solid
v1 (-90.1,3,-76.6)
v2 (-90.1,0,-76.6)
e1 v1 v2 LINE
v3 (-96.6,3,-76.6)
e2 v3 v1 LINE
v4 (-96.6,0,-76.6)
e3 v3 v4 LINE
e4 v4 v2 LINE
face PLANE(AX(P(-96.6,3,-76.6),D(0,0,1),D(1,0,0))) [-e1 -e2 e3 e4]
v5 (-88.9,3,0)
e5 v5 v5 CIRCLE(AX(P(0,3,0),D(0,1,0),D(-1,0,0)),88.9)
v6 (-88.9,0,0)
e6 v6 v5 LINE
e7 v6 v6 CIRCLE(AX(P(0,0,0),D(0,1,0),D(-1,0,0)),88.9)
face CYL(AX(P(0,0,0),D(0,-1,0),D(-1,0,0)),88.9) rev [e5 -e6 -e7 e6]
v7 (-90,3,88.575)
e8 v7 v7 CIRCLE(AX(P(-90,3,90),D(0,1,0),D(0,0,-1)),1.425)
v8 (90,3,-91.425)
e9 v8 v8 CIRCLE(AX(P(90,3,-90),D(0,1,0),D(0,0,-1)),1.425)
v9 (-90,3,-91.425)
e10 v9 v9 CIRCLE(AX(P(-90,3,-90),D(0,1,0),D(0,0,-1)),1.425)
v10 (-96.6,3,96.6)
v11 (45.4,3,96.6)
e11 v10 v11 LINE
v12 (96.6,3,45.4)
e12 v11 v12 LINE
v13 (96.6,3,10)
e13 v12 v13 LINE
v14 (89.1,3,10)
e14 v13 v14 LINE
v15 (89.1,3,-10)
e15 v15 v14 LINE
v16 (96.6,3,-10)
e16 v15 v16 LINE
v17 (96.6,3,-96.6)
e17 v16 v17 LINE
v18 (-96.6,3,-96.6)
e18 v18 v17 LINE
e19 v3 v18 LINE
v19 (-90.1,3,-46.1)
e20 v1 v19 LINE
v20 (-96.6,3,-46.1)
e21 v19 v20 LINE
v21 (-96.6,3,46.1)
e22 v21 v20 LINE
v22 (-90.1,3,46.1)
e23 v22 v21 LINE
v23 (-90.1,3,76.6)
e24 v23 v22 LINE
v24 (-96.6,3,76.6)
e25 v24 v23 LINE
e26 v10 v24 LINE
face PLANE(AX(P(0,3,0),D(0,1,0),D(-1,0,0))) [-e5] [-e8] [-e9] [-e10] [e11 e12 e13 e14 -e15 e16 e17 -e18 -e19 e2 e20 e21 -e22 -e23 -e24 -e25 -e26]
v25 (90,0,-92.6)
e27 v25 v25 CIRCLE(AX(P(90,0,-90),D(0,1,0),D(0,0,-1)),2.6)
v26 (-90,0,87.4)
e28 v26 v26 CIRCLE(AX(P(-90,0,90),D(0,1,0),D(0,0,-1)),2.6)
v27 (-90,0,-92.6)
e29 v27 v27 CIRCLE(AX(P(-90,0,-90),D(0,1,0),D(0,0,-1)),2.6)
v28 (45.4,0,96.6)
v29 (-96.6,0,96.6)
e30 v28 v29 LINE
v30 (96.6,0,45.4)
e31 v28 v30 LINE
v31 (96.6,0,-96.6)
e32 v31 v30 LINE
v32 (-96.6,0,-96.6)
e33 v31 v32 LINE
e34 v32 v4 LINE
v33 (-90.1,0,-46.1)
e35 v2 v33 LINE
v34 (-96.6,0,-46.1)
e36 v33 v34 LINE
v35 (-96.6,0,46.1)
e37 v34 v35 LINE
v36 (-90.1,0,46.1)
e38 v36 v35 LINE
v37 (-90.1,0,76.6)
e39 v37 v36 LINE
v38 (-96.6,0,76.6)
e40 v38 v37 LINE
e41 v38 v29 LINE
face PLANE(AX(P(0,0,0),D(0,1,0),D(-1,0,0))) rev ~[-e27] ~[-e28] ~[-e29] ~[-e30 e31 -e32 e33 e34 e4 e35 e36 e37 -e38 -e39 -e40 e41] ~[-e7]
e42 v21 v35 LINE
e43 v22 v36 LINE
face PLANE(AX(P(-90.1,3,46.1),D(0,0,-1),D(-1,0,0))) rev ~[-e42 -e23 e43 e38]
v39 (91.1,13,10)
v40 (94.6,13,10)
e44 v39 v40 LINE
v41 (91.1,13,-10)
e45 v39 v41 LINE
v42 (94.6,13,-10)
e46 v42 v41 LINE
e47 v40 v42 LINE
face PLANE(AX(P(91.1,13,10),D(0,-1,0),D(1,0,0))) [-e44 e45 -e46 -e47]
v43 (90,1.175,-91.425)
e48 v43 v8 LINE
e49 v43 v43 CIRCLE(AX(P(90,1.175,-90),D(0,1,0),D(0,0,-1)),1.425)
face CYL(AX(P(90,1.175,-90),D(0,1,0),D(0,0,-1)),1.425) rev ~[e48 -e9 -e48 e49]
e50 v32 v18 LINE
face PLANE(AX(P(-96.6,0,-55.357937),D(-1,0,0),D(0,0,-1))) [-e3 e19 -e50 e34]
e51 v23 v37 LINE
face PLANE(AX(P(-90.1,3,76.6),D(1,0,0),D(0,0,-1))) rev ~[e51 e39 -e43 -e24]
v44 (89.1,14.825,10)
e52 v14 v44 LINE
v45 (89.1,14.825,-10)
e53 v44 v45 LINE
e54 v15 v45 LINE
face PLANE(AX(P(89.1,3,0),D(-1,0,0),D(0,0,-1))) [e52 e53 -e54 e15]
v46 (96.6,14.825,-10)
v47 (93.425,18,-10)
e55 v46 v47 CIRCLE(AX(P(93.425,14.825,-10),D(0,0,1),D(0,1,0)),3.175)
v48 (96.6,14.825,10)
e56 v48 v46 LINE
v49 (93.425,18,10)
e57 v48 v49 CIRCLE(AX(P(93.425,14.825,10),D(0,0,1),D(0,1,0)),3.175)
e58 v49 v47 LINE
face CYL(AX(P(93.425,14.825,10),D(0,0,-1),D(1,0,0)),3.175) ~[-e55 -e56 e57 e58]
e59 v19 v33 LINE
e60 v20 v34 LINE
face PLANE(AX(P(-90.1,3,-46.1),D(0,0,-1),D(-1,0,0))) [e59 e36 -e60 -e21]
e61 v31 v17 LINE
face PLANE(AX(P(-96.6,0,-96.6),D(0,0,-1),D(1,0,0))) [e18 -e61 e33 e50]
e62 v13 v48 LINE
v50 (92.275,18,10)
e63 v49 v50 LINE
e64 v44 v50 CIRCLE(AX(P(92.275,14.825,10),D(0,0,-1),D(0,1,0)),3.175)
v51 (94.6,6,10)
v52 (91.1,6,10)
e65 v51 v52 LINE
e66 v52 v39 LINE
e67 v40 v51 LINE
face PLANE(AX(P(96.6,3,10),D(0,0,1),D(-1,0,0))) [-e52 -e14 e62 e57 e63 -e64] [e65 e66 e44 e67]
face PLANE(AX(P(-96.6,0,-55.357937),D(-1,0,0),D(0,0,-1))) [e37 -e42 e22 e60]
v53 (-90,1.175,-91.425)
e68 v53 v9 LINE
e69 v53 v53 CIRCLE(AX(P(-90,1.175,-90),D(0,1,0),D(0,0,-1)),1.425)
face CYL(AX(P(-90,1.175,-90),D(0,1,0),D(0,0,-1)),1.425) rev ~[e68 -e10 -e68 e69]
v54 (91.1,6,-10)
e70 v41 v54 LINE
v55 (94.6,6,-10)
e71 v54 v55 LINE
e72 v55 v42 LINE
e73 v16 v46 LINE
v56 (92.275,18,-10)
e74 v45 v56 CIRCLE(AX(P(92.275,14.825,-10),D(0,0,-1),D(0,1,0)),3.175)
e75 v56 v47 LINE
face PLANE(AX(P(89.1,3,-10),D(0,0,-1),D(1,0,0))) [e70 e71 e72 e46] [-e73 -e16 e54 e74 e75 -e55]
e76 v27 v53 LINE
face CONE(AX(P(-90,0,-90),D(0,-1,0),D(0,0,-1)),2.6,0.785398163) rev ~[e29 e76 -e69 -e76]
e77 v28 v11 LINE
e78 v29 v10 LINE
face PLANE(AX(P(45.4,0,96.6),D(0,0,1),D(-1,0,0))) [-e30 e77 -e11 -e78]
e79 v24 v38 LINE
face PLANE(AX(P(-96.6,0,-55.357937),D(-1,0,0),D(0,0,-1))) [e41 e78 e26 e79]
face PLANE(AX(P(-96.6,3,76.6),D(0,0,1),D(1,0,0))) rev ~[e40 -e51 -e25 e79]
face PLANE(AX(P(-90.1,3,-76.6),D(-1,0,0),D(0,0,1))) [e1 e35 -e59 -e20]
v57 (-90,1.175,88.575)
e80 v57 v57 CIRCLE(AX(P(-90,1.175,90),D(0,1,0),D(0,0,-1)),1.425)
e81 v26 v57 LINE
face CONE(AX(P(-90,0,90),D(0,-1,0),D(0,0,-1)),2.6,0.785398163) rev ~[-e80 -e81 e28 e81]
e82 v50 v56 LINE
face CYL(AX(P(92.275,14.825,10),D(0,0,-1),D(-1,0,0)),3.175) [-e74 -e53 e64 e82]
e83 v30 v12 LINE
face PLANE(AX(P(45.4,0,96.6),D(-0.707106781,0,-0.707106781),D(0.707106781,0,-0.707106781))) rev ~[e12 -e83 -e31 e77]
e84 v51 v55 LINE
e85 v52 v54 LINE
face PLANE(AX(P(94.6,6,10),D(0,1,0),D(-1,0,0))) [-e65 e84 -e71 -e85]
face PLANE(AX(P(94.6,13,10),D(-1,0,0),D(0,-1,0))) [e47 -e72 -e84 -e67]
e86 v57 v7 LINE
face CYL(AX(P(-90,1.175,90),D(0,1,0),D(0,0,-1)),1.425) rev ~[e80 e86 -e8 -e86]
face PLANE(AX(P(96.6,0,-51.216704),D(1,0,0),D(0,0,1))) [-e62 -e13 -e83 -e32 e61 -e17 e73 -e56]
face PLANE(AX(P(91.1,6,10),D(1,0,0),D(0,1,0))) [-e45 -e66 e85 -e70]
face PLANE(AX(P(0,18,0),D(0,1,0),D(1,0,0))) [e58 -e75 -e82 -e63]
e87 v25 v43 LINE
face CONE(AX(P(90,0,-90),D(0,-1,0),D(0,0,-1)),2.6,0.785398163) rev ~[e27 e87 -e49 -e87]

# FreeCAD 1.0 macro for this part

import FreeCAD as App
import Part
import Sketcher


def edges_at(feature, points):
    """Names of the edges that pass closest to the given points."""
    edges = feature.Shape.Edges
    near = lambda p: min(range(len(edges)), key=lambda i: edges[i].distToShape(Part.Vertex(*p))[0])
    return sorted({f"Edge{near(p) + 1}" for p in points})


def add_polygon(sketch, points):
    """Adds a closed chain of lines whose ends are joined by coincident constraints."""
    first, n = sketch.GeometryCount, len(points)
    for a, b in zip(points, points[1:] + points[:1]):
        sketch.addGeometry(Part.LineSegment(App.Vector(*a, 0), App.Vector(*b, 0)), False)
    for i in range(n):
        sketch.addConstraint(Sketcher.Constraint("Coincident", first + i, 2, first + (i + 1) % n, 1))

doc = App.newDocument("Part")
params = doc.addObject("Spreadsheet::Sheet", "Params")
for row, (alias, value) in enumerate([
    ("sketch1_diameter", "177.8 mm"),
    ("sketch1_width", "142 mm"),
    ("sketch1_width2", "193.2 mm"),
    ("pad1_length", "3 mm"),
    ("sketch2_width", "7.5 mm"),
    ("pad2_length", "15 mm"),
    ("sketch3_height", "7 mm"),
    ("sketch3_width", "3.5 mm"),
    ("fillet_radius", "3.175 mm"),
    ("sketch4_width", "6.5 mm"),
    ("sketch4_height", "30.5 mm"),
    ("sketch5_diameter", "2.85 mm"),
    ("hole_diameter", "2.85 mm"),
    ("hole_depth", "4 mm"),
    ("hole_csink_diameter", "5.2 mm"),
], start=1):
    params.set(f"A{row}", alias)
    params.set(f"B{row}", "=" + value)
    params.setAlias(f"B{row}", alias)

body = doc.addObject("PartDesign::Body", "Body")

# Sketch on XZ plane
sketch1 = body.newObject("Sketcher::SketchObject", "Sketch")
sketch1.AttachmentSupport = (doc.getObject("XZ_Plane"), [""])
sketch1.MapMode = "FlatFace"
add_polygon(sketch1, [(-96.6, -96.6), (-96.6, 96.6), (45.4, 96.6), (96.6, 45.4), (96.6, -96.6)])  # lines 0-4
sketch1.addGeometry(Part.Circle(App.Vector(0, 0, 0), App.Vector(0, 0, 1), 88.9), False)  # 5
sketch1.addConstraint([
    Sketcher.Constraint("Vertical", 0),
    Sketcher.Constraint("Horizontal", 1),
    Sketcher.Constraint("Vertical", 3),
    Sketcher.Constraint("Horizontal", 4),
    Sketcher.Constraint("Coincident", 5, 3, -1, 1),
    Sketcher.Constraint("Symmetric", 0, 2, 3, 2, -1, 1),
    Sketcher.Constraint("Equal", 4, 0),
    Sketcher.Constraint("Equal", 1, 3),
    Sketcher.Constraint("Diameter", 5, 177.8),
    Sketcher.Constraint("DistanceX", 1, 1, 1, 2, 142.0),
    Sketcher.Constraint("DistanceX", 4, 2, 4, 1, 193.2),
])
sketch1.setExpression("Constraints[13]", "Params.sketch1_diameter")
sketch1.setExpression("Constraints[14]", "Params.sketch1_width")
sketch1.setExpression("Constraints[15]", "Params.sketch1_width2")
pad1 = body.newObject("PartDesign::Pad", "Pad")
pad1.Profile = sketch1
pad1.setExpression("Length", "Params.pad1_length")
pad1.Reversed = True

# Sketch on XZ plane
sketch2 = body.newObject("Sketcher::SketchObject", "Sketch001")
sketch2.AttachmentSupport = (doc.getObject("XZ_Plane"), [""])
sketch2.MapMode = "FlatFace"
sketch2.AttachmentOffset = App.Placement(App.Vector(0, 0, -3), App.Rotation())
add_polygon(sketch2, [(89.1, -10), (89.1, 10), (96.6, 10), (96.6, -10)])  # lines 0-3
sketch2.addConstraint([
    Sketcher.Constraint("Vertical", 0),
    Sketcher.Constraint("Horizontal", 1),
    Sketcher.Constraint("Vertical", 2),
    Sketcher.Constraint("Horizontal", 3),
    Sketcher.Constraint("DistanceX", 1, 1, 1, 2, 7.5),
    Sketcher.Constraint("DistanceY", -1, 1, 0, 2, 10.0),
    Sketcher.Constraint("DistanceY", 2, 2, -1, 1, 10.0),
    Sketcher.Constraint("DistanceX", -1, 1, 0, 2, 89.1),
])
sketch2.setExpression("Constraints[8]", "Params.sketch2_width")
pad2 = body.newObject("PartDesign::Pad", "Pad001")
pad2.Profile = sketch2
pad2.setExpression("Length", "Params.pad2_length")
pad2.Reversed = True

# Sketch on XY plane
sketch3 = body.newObject("Sketcher::SketchObject", "Sketch002")
sketch3.AttachmentSupport = (doc.getObject("XY_Plane"), [""])
sketch3.MapMode = "FlatFace"
sketch3.AttachmentOffset = App.Placement(App.Vector(0, 0, 10), App.Rotation())
add_polygon(sketch3, [(94.6, 13), (91.1, 13), (91.1, 6), (94.6, 6)])  # lines 0-3
sketch3.addConstraint([
    Sketcher.Constraint("Horizontal", 0),
    Sketcher.Constraint("Vertical", 1),
    Sketcher.Constraint("Horizontal", 2),
    Sketcher.Constraint("Vertical", 3),
    Sketcher.Constraint("DistanceY", 1, 2, 1, 1, 7.0),
    Sketcher.Constraint("DistanceX", 0, 2, 0, 1, 3.5),
    Sketcher.Constraint("DistanceY", -1, 1, 0, 2, 13.0),
    Sketcher.Constraint("DistanceX", -1, 1, 0, 2, 91.1),
])
sketch3.setExpression("Constraints[8]", "Params.sketch3_height")
sketch3.setExpression("Constraints[9]", "Params.sketch3_width")
pocket1 = body.newObject("PartDesign::Pocket", "Pocket")
pocket1.Profile = sketch3
pocket1.Type = "ThroughAll"
doc.recompute()

fillet = body.newObject("PartDesign::Fillet", "Fillet")
fillet.Base = (pocket1, edges_at(pocket1, [(96.6, 18, 0), (89.1, 18, 0)]))
fillet.setExpression("Radius", "Params.fillet_radius")

# Sketch on XZ plane
sketch4 = body.newObject("Sketcher::SketchObject", "Sketch003")
sketch4.AttachmentSupport = (doc.getObject("XZ_Plane"), [""])
sketch4.MapMode = "FlatFace"
sketch4.AttachmentOffset = App.Placement(App.Vector(0, 0, -3), App.Rotation())
add_polygon(sketch4, [(-90.1, -76.6), (-96.6, -76.6), (-96.6, -46.1), (-90.1, -46.1)])  # lines 0-3
add_polygon(sketch4, [(-90.1, 46.1), (-96.6, 46.1), (-96.6, 76.6), (-90.1, 76.6)])  # lines 4-7
sketch4.addConstraint([
    Sketcher.Constraint("Horizontal", 0),
    Sketcher.Constraint("Vertical", 1),
    Sketcher.Constraint("Horizontal", 2),
    Sketcher.Constraint("Vertical", 3),
    Sketcher.Constraint("Horizontal", 4),
    Sketcher.Constraint("Vertical", 5),
    Sketcher.Constraint("Horizontal", 6),
    Sketcher.Constraint("Vertical", 7),
    Sketcher.Constraint("Symmetric", 1, 2, 4, 2, -1),
    Sketcher.Constraint("Symmetric", 3, 2, 6, 2, -1),
    Sketcher.Constraint("DistanceX", 0, 2, 0, 1, 6.5),
    Sketcher.Constraint("DistanceY", 1, 1, 1, 2, 30.5),
    Sketcher.Constraint("DistanceX", 0, 2, -1, 1, 96.6),
    Sketcher.Constraint("DistanceY", 0, 2, -1, 1, 76.6),
])
sketch4.setExpression("Constraints[18]", "Params.sketch4_width")
sketch4.setExpression("Constraints[19]", "Params.sketch4_height")
pocket2 = body.newObject("PartDesign::Pocket", "Pocket001")
pocket2.Profile = sketch4
pocket2.Type = "ThroughAll"
pocket2.Reversed = True

# Sketch on XZ plane
sketch5 = body.newObject("Sketcher::SketchObject", "Sketch004")
sketch5.AttachmentSupport = (doc.getObject("XZ_Plane"), [""])
sketch5.MapMode = "FlatFace"
sketch5.addGeometry([
    Part.Circle(App.Vector(90, -90, 0), App.Vector(0, 0, 1), 1.425),
    Part.Circle(App.Vector(-90, 90, 0), App.Vector(0, 0, 1), 1.425),
    Part.Circle(App.Vector(-90, -90, 0), App.Vector(0, 0, 1), 1.425),
], False)
sketch5.addConstraint([
    Sketcher.Constraint("Equal", 0, 1),
    Sketcher.Constraint("Equal", 1, 2),
    Sketcher.Constraint("Symmetric", 0, 3, 1, 3, -1, 1),
    Sketcher.Constraint("Symmetric", 0, 3, 2, 3, -2),
    Sketcher.Constraint("Diameter", 0, 2.85),
    Sketcher.Constraint("DistanceX", -1, 1, 0, 3, 90.0),
    Sketcher.Constraint("DistanceY", 0, 3, -1, 1, 90.0),
])
sketch5.setExpression("Constraints[4]", "Params.sketch5_diameter")
doc.recompute()
hole = body.newObject("PartDesign::Hole", "Hole")
hole.Profile = sketch5
hole.ThreadType = "None"
hole.setExpression("Diameter", "Params.hole_diameter")
hole.DepthType = "Dimension"
hole.setExpression("Depth", "Params.hole_depth")
hole.DrillPoint = "Angled"
hole.DrillPointAngle = 118
hole.HoleCutType = "Countersink"
hole.setExpression("HoleCutDiameter", "Params.hole_csink_diameter")
hole.HoleCutCountersinkAngle = 90

doc.recompute()
